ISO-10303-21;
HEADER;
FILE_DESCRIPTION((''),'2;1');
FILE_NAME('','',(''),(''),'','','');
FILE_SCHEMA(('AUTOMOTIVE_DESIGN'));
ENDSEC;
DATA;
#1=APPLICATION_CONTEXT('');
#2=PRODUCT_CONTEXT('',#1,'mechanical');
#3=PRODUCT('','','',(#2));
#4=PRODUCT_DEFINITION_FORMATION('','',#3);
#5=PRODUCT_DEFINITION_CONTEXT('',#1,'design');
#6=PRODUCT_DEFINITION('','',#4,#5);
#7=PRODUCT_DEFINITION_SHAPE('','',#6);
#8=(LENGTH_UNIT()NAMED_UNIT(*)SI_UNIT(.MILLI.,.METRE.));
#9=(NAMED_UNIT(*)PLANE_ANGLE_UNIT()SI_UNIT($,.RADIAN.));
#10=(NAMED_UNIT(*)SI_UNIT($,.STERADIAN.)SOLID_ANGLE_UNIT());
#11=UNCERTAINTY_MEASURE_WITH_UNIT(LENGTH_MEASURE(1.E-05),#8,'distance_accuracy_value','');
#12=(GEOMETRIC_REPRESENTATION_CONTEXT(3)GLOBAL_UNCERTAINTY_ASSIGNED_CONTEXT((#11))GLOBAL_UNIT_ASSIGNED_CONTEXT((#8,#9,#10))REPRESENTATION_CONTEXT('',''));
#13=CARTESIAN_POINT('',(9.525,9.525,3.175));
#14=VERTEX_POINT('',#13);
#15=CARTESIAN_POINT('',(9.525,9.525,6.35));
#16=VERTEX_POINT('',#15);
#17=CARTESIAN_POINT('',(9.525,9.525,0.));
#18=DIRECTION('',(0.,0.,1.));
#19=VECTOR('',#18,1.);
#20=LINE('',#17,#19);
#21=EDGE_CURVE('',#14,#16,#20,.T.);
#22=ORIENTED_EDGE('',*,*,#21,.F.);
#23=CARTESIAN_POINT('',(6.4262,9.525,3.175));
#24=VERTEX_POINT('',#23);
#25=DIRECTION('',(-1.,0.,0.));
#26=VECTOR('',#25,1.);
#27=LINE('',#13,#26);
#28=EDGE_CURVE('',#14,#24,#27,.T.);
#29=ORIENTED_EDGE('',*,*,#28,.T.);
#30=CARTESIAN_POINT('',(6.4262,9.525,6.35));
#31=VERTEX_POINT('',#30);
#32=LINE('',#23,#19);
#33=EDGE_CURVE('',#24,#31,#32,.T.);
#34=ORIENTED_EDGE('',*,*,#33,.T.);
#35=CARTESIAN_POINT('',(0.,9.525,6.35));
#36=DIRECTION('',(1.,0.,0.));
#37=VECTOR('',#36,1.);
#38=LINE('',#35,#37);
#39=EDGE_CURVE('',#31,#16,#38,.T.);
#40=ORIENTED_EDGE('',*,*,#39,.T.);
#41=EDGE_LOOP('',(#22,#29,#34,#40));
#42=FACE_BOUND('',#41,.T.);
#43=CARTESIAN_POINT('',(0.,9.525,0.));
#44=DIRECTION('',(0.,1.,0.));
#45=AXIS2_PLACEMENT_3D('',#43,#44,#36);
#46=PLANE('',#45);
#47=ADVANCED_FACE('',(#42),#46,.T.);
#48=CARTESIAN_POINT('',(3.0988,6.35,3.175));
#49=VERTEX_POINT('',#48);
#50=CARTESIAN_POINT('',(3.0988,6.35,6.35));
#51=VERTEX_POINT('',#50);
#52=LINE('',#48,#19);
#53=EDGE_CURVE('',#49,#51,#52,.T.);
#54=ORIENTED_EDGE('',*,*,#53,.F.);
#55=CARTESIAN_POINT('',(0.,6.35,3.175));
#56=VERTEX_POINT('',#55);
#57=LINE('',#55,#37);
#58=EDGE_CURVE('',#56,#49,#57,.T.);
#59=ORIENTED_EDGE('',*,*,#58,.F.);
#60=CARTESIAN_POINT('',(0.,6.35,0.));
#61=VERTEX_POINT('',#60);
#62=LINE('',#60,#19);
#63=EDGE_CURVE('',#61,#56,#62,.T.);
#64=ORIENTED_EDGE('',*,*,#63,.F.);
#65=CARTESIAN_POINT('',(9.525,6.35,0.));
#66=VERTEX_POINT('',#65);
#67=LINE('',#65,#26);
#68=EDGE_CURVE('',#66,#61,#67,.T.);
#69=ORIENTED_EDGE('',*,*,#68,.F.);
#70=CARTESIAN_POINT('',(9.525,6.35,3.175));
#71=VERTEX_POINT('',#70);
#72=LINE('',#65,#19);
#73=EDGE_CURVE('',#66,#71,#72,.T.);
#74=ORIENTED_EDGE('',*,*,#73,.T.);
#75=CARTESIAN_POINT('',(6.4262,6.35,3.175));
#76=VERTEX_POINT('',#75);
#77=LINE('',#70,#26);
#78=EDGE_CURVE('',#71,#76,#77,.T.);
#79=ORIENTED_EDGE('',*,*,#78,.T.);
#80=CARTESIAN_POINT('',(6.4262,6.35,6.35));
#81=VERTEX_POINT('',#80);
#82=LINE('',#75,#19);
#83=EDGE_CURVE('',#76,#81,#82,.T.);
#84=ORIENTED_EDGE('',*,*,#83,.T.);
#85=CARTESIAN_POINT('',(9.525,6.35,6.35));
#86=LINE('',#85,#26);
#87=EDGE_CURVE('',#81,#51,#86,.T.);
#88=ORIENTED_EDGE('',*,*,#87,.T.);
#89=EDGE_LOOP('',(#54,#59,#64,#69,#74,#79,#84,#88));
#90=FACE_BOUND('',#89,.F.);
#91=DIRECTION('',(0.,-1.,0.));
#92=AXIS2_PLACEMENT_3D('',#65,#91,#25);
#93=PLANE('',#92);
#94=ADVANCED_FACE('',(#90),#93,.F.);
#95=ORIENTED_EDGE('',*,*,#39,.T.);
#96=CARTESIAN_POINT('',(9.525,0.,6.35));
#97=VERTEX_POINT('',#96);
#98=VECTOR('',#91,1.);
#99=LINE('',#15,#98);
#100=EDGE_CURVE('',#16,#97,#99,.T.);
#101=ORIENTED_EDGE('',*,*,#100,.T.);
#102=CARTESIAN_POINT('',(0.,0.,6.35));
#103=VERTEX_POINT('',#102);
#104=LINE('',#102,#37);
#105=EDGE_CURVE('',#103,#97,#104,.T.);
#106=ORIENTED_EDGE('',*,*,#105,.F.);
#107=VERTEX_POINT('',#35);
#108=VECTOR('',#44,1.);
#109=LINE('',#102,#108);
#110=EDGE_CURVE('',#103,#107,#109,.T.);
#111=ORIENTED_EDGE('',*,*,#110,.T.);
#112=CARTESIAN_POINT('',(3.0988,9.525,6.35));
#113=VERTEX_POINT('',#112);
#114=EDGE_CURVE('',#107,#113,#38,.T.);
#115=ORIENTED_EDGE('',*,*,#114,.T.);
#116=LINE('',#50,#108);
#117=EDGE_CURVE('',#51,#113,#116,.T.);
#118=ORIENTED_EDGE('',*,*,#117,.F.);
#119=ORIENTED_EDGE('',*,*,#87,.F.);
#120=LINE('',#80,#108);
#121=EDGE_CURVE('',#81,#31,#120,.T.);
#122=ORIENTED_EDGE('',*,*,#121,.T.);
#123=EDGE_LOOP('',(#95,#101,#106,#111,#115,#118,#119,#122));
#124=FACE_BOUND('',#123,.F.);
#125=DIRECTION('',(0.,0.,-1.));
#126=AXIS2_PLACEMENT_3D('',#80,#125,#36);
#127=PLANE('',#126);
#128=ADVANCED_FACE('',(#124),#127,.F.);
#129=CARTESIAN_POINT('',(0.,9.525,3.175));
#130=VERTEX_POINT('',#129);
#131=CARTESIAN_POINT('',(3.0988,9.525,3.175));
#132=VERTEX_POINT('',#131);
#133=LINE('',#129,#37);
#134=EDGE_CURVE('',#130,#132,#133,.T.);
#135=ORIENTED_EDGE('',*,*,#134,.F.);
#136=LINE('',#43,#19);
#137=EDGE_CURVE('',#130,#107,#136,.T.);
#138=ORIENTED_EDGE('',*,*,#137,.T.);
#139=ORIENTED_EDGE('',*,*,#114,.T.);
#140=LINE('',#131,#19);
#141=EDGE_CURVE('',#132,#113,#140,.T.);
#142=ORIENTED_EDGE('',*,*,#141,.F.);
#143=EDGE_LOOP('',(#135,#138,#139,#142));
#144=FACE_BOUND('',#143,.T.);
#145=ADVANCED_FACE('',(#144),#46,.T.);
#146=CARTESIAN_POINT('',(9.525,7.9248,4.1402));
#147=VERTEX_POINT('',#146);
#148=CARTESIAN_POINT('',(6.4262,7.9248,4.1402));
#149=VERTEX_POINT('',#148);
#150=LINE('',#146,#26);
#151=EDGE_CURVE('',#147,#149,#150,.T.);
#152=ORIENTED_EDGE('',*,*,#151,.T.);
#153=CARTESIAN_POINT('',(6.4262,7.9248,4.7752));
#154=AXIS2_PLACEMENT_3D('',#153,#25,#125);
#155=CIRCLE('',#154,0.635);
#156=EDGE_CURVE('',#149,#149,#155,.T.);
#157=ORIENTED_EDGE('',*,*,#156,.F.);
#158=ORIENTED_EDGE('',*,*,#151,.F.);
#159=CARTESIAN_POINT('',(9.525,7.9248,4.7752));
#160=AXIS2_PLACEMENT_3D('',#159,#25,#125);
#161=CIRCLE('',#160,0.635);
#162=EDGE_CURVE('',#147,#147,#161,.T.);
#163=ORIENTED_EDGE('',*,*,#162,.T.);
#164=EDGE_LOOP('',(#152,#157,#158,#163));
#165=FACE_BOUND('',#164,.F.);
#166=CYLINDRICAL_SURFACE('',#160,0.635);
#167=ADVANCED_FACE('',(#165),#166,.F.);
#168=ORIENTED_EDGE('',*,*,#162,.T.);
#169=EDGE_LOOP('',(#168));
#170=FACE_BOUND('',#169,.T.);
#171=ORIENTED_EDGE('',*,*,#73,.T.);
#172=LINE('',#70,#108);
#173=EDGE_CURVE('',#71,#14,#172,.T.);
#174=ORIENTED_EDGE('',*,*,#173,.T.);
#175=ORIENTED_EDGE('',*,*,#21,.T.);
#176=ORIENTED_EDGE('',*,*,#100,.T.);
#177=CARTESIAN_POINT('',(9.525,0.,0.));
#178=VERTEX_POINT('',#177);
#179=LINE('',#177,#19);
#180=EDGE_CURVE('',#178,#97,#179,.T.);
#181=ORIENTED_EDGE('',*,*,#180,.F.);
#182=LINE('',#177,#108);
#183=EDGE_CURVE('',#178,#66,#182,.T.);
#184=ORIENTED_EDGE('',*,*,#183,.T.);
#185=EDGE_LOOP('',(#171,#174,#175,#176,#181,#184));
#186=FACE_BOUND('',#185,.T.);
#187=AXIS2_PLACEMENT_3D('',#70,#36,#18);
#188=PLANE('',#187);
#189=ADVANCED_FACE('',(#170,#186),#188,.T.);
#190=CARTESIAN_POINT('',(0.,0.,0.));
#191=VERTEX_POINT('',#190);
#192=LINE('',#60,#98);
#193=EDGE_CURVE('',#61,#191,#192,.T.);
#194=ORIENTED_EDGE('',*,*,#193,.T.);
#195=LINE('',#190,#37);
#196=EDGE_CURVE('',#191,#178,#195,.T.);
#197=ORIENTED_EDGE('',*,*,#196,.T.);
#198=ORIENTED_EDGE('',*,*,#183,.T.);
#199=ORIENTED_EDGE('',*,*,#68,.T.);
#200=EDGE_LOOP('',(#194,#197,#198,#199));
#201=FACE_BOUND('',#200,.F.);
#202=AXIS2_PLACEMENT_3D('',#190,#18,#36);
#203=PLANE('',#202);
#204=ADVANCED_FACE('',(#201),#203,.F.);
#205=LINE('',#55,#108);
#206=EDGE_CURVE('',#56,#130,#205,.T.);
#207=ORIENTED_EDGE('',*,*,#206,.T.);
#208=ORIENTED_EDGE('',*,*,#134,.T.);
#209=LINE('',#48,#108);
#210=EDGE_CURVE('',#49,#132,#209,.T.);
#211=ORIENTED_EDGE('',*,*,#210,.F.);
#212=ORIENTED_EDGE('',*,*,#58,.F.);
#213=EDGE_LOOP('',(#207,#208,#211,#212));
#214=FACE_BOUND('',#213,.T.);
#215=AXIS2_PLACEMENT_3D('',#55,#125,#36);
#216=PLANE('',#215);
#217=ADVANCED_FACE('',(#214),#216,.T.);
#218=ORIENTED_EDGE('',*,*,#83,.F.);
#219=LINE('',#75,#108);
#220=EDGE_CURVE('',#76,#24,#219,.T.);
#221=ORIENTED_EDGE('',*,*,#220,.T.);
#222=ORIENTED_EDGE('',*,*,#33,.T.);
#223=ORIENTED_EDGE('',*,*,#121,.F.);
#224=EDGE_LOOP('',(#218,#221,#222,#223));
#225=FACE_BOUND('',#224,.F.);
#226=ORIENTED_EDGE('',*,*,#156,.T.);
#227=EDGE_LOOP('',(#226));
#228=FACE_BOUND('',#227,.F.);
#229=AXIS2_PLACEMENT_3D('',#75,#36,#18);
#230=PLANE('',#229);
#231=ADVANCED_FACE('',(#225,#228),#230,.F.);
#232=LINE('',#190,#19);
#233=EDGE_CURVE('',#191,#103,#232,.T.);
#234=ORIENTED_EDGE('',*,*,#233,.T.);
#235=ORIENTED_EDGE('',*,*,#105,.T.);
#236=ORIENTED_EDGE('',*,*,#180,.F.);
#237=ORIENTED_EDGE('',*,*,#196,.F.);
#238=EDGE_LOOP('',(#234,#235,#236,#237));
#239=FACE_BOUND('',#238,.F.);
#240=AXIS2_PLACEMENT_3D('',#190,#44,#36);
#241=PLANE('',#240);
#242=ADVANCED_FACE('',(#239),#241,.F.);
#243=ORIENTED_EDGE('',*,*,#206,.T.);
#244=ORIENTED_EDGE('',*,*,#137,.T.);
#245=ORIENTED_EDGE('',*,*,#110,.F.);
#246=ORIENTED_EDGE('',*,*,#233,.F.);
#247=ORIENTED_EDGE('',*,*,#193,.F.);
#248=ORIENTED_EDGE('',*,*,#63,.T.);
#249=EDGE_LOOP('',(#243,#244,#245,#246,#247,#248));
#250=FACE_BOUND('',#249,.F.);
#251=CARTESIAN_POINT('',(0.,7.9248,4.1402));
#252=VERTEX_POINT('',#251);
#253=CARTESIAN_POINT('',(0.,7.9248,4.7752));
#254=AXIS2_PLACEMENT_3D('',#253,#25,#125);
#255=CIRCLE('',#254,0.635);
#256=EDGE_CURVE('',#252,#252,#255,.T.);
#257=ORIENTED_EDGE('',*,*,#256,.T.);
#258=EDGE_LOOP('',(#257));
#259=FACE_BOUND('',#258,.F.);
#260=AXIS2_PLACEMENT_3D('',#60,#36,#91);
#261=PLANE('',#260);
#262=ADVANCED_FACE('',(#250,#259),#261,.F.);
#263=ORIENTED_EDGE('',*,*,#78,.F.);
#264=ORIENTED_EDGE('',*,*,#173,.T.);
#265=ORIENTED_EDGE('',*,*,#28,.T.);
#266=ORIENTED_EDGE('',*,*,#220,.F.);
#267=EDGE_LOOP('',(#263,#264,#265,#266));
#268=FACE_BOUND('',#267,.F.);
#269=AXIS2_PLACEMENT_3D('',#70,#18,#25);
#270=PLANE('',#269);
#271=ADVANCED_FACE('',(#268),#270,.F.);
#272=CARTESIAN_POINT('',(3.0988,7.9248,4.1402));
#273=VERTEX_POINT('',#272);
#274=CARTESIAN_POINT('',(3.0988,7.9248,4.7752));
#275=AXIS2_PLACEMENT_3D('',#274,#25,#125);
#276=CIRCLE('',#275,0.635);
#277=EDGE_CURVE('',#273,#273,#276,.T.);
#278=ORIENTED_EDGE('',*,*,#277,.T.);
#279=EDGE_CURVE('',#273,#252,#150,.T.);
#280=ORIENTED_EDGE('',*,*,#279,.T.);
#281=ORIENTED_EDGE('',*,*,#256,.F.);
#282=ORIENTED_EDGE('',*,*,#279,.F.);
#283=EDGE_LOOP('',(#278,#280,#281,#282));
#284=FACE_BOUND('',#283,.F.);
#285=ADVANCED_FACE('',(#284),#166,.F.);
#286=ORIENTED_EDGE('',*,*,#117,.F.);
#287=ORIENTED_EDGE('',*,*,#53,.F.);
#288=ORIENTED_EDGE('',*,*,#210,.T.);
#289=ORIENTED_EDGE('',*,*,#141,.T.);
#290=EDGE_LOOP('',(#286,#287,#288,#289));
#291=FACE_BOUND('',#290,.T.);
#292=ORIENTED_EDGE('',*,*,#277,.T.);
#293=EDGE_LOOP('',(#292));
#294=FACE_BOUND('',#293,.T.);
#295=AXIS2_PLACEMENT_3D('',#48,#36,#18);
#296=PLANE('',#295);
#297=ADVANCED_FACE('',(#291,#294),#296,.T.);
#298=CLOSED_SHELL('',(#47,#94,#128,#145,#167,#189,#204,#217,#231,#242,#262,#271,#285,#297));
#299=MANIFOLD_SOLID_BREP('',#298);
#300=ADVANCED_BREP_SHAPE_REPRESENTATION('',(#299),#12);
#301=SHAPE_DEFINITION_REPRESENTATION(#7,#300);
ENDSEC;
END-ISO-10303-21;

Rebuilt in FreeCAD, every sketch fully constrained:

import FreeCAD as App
import Part
import Sketcher
Q = App.Units.Quantity


def add_polygon(sketch, points):
    """Adds a closed chain of lines whose ends are joined by coincident constraints."""
    first, n = sketch.GeometryCount, len(points)
    for a, b in zip(points, points[1:] + points[:1]):
        sketch.addGeometry(Part.LineSegment(App.Vector(*a, 0), App.Vector(*b, 0)), False)
    for i in range(n):
        sketch.addConstraint(Sketcher.Constraint("Coincident", first + i, 2, first + (i + 1) % n, 1))

doc = App.newDocument("Part")
body = doc.addObject("PartDesign::Body", "Body")

# Sketch on XY plane
sketch1 = body.newObject("Sketcher::SketchObject", "Sketch")
sketch1.AttachmentSupport = (doc.getObject("XY_Plane"), [""])
sketch1.MapMode = "FlatFace"
add_polygon(sketch1, [(0, 6), (0, 0), (10, 0), (10, 6)])  # lines 0-3
sketch1.addConstraint([
    Sketcher.Constraint("Vertical", 0),
    Sketcher.Constraint("Horizontal", 1),
    Sketcher.Constraint("Vertical", 2),
    Sketcher.Constraint("Horizontal", 3),
    Sketcher.Constraint("Coincident", 0, 2, -1, 1),
    Sketcher.Constraint("DistanceY", 0, 2, 0, 1, Q("0.25 in")),
    Sketcher.Constraint("DistanceX", 1, 1, 1, 2, Q("0.375 in")),
])
pad1 = body.newObject("PartDesign::Pad", "Pad")
pad1.Profile = sketch1
pad1.Length = Q("0.25 in")

# Sketch on XZ plane
sketch2 = body.newObject("Sketcher::SketchObject", "Sketch001")
sketch2.AttachmentSupport = (doc.getObject("XZ_Plane"), [""])
sketch2.MapMode = "FlatFace"
sketch2.AttachmentOffset = App.Placement(App.Vector(0, 0, -0.25 * 25.4), App.Rotation())
add_polygon(sketch2, [(3.1, 3.2), (0, 3.2), (0, 6.3), (3.1, 6.3)])  # lines 0-3
sketch2.addConstraint([
    Sketcher.Constraint("Horizontal", 0),
    Sketcher.Constraint("Vertical", 1),
    Sketcher.Constraint("Horizontal", 2),
    Sketcher.Constraint("Vertical", 3),
    Sketcher.Constraint("PointOnObject", 0, 2, -2),
    Sketcher.Constraint("DistanceX", 0, 2, 0, 1, Q("0.122 in")),
    Sketcher.Constraint("DistanceY", 1, 1, 1, 2, Q("0.125 in")),
    Sketcher.Constraint("DistanceY", -1, 1, 1, 2, Q("0.25 in")),
])
pad2 = body.newObject("PartDesign::Pad", "Pad001")
pad2.Profile = sketch2
pad2.Length = Q("0.125 in")
pad2.Reversed = True

# Sketch on XZ plane
sketch3 = body.newObject("Sketcher::SketchObject", "Sketch002")
sketch3.AttachmentSupport = (doc.getObject("XZ_Plane"), [""])
sketch3.MapMode = "FlatFace"
sketch3.AttachmentOffset = App.Placement(App.Vector(0, 0, -0.25 * 25.4), App.Rotation())
add_polygon(sketch3, [(9.5, 6.3), (9.5, 3.2), (6.4, 3.2), (6.4, 6.3)])  # lines 0-3
sketch3.addConstraint([
    Sketcher.Constraint("Vertical", 0),
    Sketcher.Constraint("Horizontal", 1),
    Sketcher.Constraint("Vertical", 2),
    Sketcher.Constraint("Horizontal", 3),
    Sketcher.Constraint("DistanceX", 1, 2, 1, 1, Q("0.122 in")),
    Sketcher.Constraint("DistanceY", 0, 2, 0, 1, Q("0.125 in")),
    Sketcher.Constraint("DistanceY", -1, 1, 2, 2, Q("0.25 in")),
    Sketcher.Constraint("DistanceX", -1, 1, 0, 2, Q("0.375 in")),
])
pad3 = body.newObject("PartDesign::Pad", "Pad002")
pad3.Profile = sketch3
pad3.Length = Q("0.125 in")
pad3.Reversed = True

# Sketch on YZ plane
sketch4 = body.newObject("Sketcher::SketchObject", "Sketch003")
sketch4.AttachmentSupport = (doc.getObject("YZ_Plane"), [""])
sketch4.MapMode = "FlatFace"
sketch4.AttachmentOffset = App.Placement(App.Vector(0, 0, 0.375 * 25.4), App.Rotation())
sketch4.addGeometry(Part.Circle(App.Vector(7.9, 4.8, 0), App.Vector(0, 0, 1), 0.6), False)
sketch4.addConstraint([
    Sketcher.Constraint("Diameter", 0, Q("0.05 in")),
    Sketcher.Constraint("DistanceX", -1, 1, 0, 3, Q("0.312 in")),
    Sketcher.Constraint("DistanceY", -1, 1, 0, 3, Q("0.188 in")),
])
doc.recompute()
hole = body.newObject("PartDesign::Hole", "Hole")
hole.Profile = sketch4
hole.ThreadType = "None"
hole.Diameter = Q("0.05 in")
hole.DepthType = "ThroughAll"

doc.recompute()
